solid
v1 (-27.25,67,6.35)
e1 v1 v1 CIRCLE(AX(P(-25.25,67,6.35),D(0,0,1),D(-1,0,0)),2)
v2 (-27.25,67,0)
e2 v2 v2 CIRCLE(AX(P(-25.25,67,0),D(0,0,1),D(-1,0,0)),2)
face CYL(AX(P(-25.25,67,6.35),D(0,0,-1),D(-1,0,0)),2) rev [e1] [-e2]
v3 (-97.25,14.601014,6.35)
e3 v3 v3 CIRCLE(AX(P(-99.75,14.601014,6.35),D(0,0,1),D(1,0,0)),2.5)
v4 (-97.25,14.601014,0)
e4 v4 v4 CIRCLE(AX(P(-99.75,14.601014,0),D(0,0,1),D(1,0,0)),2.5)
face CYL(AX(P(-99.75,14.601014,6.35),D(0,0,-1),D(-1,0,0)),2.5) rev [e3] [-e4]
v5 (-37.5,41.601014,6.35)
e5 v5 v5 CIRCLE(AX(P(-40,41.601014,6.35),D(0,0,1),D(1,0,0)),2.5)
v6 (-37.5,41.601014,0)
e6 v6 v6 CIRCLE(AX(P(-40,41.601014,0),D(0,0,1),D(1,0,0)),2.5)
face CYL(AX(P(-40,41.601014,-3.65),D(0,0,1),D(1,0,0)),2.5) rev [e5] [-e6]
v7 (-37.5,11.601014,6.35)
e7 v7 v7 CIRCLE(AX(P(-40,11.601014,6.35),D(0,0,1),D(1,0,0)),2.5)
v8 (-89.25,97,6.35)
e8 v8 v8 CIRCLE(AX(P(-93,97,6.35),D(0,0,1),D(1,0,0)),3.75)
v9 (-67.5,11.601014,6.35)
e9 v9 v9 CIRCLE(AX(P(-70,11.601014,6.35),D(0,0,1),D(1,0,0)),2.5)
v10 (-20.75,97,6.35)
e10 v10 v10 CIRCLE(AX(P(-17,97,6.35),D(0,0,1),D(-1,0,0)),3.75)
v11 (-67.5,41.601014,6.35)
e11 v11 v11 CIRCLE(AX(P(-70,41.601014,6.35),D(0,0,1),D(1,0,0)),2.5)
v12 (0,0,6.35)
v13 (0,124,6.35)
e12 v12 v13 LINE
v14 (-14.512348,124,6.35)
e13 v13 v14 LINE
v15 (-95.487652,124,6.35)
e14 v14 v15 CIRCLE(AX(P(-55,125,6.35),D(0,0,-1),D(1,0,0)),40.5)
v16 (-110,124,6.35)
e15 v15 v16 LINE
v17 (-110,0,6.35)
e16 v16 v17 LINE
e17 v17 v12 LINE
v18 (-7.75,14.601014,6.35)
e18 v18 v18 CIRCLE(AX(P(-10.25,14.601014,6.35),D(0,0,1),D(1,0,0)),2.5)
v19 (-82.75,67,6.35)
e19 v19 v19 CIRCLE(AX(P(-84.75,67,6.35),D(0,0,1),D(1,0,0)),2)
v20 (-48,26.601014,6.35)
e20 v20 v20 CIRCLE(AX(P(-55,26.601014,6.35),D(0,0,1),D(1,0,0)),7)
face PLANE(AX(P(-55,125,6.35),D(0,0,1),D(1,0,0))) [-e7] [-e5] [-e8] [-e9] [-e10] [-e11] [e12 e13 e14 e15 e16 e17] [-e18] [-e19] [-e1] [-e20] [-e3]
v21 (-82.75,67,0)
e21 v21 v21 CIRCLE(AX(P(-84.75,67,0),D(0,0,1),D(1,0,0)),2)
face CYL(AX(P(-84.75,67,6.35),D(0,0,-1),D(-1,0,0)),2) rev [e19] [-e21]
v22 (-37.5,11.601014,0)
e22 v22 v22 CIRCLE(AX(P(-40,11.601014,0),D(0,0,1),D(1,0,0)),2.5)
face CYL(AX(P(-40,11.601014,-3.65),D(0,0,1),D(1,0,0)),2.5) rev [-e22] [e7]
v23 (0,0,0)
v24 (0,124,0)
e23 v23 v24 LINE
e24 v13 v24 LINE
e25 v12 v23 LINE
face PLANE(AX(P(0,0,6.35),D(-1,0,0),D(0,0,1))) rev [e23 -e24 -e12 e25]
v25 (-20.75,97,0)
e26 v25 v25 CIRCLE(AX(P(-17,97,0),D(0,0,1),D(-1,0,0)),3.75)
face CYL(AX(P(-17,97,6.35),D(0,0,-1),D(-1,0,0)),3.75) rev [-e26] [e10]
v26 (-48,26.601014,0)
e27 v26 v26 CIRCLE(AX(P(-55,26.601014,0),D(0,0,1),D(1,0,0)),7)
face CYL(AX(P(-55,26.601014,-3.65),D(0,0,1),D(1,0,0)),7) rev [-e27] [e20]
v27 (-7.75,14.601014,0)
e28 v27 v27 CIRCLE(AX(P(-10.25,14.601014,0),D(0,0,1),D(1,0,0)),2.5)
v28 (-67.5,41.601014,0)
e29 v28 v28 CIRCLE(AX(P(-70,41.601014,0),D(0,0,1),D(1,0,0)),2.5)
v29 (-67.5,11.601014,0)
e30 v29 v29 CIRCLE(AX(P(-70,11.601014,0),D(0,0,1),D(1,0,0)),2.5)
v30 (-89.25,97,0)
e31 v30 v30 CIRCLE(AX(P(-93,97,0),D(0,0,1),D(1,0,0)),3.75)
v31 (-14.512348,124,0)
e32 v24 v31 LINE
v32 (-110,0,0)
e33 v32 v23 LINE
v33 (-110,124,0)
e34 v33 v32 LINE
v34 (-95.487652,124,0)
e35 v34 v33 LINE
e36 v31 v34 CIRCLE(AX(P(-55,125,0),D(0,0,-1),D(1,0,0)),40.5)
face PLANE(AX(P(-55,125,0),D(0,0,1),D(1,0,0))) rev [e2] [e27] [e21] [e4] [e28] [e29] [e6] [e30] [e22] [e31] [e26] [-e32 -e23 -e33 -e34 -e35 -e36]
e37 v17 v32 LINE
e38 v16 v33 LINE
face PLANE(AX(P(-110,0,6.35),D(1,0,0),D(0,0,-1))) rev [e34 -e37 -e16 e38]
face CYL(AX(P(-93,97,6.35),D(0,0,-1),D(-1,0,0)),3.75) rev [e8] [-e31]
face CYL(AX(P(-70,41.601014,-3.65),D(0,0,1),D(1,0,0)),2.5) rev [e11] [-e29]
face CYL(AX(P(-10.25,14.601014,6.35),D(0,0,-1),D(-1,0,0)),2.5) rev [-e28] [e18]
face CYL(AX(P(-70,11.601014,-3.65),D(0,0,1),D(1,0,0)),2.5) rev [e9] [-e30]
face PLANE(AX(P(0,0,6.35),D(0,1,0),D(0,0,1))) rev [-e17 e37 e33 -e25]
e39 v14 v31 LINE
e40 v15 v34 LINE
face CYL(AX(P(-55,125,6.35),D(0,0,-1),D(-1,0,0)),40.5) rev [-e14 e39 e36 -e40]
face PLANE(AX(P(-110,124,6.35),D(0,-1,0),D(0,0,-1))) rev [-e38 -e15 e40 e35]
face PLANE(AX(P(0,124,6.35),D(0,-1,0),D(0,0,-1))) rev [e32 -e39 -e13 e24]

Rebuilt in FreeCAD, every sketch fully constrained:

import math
import FreeCAD as App
import Part
import Sketcher
from FreeCAD import Vector

doc = App.newDocument("Part")
body = doc.addObject("PartDesign::Body", "Body")

# Sketch on XY plane
sketch1 = body.newObject("Sketcher::SketchObject", "Sketch")
sketch1.AttachmentSupport = (doc.getObject("XY_Plane"), [""])
sketch1.MapMode = "FlatFace"
sketch1.addGeometry([
    Part.LineSegment(Vector(-110, 0, 0), Vector(0, 0, 0)),  # 0
    Part.LineSegment(Vector(0, 0, 0), Vector(0, 124, 0)),  # 1
    Part.LineSegment(Vector(0, 124, 0), Vector(-14.5, 124, 0)),  # 2
    Part.ArcOfCircle(Part.Circle(Vector(-55, 125, 0), Vector(0, 0, 1), 40.5), math.radians(-179), math.radians(-1)),  # 3
    Part.LineSegment(Vector(-95.5, 124, 0), Vector(-110, 124, 0)),  # 4
    Part.LineSegment(Vector(-110, 124, 0), Vector(-110, 0, 0)),  # 5
    Part.Circle(Vector(-10.2, 14.6, 0), Vector(0, 0, 1), 2.5),  # 6
    Part.Circle(Vector(-99.8, 14.6, 0), Vector(0, 0, 1), 2.5),  # 7
    Part.Circle(Vector(-25.2, 67, 0), Vector(0, 0, 1), 2),  # 8
    Part.Circle(Vector(-17, 97, 0), Vector(0, 0, 1), 3.8),  # 9
    Part.Circle(Vector(-84.8, 67, 0), Vector(0, 0, 1), 2),  # 10
    Part.Circle(Vector(-93, 97, 0), Vector(0, 0, 1), 3.8),  # 11
], False)
sketch1.addConstraint([
    Sketcher.Constraint("Coincident", 0, 2, 1, 1),
    Sketcher.Constraint("Coincident", 1, 2, 2, 1),
    Sketcher.Constraint("Coincident", 2, 2, 3, 2),
    Sketcher.Constraint("Coincident", 3, 1, 4, 1),
    Sketcher.Constraint("Coincident", 4, 2, 5, 1),
    Sketcher.Constraint("Coincident", 5, 2, 0, 1),
    Sketcher.Constraint("Horizontal", 0),
    Sketcher.Constraint("Vertical", 1),
    Sketcher.Constraint("Horizontal", 2),
    Sketcher.Constraint("Horizontal", 4),
    Sketcher.Constraint("Vertical", 5),
    Sketcher.Constraint("Coincident", 0, 2, -1, 1),
    Sketcher.Constraint("Equal", 6, 7),
    Sketcher.Constraint("Equal", 8, 10),
    Sketcher.Constraint("Equal", 9, 11),
    Sketcher.Constraint("Horizontal", 6, 3, 7, 3),
    Sketcher.Constraint("Horizontal", 8, 3, 10, 3),
    Sketcher.Constraint("Horizontal", 9, 3, 11, 3),
    Sketcher.Constraint("Horizontal", 2, 2, 3, 1),
    Sketcher.Constraint("Equal", 2, 4),
    Sketcher.Constraint("Diameter", 6, 5.0),
    Sketcher.Constraint("Diameter", 8, 4.0),
    Sketcher.Constraint("Diameter", 9, 7.5),
    Sketcher.Constraint("Radius", 3, 40.5),
    Sketcher.Constraint("DistanceX", 0, 1, 0, 2, 110.0),
    Sketcher.Constraint("DistanceY", 1, 1, 1, 2, 124.0),
    Sketcher.Constraint("DistanceY", -1, 1, 3, 3, 125.0),
    Sketcher.Constraint("DistanceY", -1, 1, 8, 3, 67.0),
    Sketcher.Constraint("DistanceX", 9, 3, -1, 1, 17.0),
    Sketcher.Constraint("DistanceY", -1, 1, 9, 3, 97.0),
    Sketcher.Constraint("DistanceX", 11, 3, -1, 1, 93.0),
    Sketcher.Constraint("DistanceX", 8, 3, 6, 3, 15.0),
    Sketcher.Constraint("DistanceX", 7, 3, 10, 3, 15.0),
    Sketcher.Constraint("DistanceX", 7, 3, 6, 3, 89.5),
    Sketcher.Constraint("DistanceX", 6, 3, -1, 1, 10.25),
    Sketcher.Constraint("DistanceY", -1, 1, 6, 3, 14.601014),
])
pad1 = body.newObject("PartDesign::Pad", "Pad")
pad1.Profile = sketch1
pad1.Length = 6.35

# Sketch on XY plane
sketch2 = body.newObject("Sketcher::SketchObject", "Sketch001")
sketch2.AttachmentSupport = (doc.getObject("XY_Plane"), [""])
sketch2.MapMode = "FlatFace"
sketch2.AttachmentOffset = App.Placement(Vector(0, 0, 6.35), App.Rotation())
sketch2.addGeometry([
    Part.Circle(Vector(-55, 26.6, 0), Vector(0, 0, 1), 7),  # 0
    Part.Circle(Vector(-40, 11.6, 0), Vector(0, 0, 1), 2.5),  # 1
    Part.Circle(Vector(-70, 11.6, 0), Vector(0, 0, 1), 2.5),  # 2
    Part.Circle(Vector(-70, 41.6, 0), Vector(0, 0, 1), 2.5),  # 3
    Part.Circle(Vector(-40, 41.6, 0), Vector(0, 0, 1), 2.5),  # 4
], False)
sketch2.addConstraint([
    Sketcher.Constraint("Equal", 1, 2),
    Sketcher.Constraint("Equal", 2, 3),
    Sketcher.Constraint("Equal", 3, 4),
    Sketcher.Constraint("Horizontal", 1, 3, 2, 3),
    Sketcher.Constraint("Horizontal", 3, 3, 4, 3),
    Sketcher.Constraint("Vertical", 2, 3, 3, 3),
    Sketcher.Constraint("Vertical", 1, 3, 4, 3),
    Sketcher.Constraint("Diameter", 0, 14.0),
    Sketcher.Constraint("Diameter", 1, 5.0),
    Sketcher.Constraint("DistanceX", 0, 3, -1, 1, 55.0),
    Sketcher.Constraint("DistanceX", 1, 3, -1, 1, 40.0),
    Sketcher.Constraint("DistanceX", 2, 3, -1, 1, 70.0),
    Sketcher.Constraint("DistanceY", 1, 3, 0, 3, 15.0),
    Sketcher.Constraint("DistanceY", 0, 3, 3, 3, 15.0),
    Sketcher.Constraint("DistanceY", -1, 1, 0, 3, 26.601014),
])
pocket1 = body.newObject("PartDesign::Pocket", "Pocket")
pocket1.Profile = sketch2
pocket1.Length = 10

doc.recompute()
